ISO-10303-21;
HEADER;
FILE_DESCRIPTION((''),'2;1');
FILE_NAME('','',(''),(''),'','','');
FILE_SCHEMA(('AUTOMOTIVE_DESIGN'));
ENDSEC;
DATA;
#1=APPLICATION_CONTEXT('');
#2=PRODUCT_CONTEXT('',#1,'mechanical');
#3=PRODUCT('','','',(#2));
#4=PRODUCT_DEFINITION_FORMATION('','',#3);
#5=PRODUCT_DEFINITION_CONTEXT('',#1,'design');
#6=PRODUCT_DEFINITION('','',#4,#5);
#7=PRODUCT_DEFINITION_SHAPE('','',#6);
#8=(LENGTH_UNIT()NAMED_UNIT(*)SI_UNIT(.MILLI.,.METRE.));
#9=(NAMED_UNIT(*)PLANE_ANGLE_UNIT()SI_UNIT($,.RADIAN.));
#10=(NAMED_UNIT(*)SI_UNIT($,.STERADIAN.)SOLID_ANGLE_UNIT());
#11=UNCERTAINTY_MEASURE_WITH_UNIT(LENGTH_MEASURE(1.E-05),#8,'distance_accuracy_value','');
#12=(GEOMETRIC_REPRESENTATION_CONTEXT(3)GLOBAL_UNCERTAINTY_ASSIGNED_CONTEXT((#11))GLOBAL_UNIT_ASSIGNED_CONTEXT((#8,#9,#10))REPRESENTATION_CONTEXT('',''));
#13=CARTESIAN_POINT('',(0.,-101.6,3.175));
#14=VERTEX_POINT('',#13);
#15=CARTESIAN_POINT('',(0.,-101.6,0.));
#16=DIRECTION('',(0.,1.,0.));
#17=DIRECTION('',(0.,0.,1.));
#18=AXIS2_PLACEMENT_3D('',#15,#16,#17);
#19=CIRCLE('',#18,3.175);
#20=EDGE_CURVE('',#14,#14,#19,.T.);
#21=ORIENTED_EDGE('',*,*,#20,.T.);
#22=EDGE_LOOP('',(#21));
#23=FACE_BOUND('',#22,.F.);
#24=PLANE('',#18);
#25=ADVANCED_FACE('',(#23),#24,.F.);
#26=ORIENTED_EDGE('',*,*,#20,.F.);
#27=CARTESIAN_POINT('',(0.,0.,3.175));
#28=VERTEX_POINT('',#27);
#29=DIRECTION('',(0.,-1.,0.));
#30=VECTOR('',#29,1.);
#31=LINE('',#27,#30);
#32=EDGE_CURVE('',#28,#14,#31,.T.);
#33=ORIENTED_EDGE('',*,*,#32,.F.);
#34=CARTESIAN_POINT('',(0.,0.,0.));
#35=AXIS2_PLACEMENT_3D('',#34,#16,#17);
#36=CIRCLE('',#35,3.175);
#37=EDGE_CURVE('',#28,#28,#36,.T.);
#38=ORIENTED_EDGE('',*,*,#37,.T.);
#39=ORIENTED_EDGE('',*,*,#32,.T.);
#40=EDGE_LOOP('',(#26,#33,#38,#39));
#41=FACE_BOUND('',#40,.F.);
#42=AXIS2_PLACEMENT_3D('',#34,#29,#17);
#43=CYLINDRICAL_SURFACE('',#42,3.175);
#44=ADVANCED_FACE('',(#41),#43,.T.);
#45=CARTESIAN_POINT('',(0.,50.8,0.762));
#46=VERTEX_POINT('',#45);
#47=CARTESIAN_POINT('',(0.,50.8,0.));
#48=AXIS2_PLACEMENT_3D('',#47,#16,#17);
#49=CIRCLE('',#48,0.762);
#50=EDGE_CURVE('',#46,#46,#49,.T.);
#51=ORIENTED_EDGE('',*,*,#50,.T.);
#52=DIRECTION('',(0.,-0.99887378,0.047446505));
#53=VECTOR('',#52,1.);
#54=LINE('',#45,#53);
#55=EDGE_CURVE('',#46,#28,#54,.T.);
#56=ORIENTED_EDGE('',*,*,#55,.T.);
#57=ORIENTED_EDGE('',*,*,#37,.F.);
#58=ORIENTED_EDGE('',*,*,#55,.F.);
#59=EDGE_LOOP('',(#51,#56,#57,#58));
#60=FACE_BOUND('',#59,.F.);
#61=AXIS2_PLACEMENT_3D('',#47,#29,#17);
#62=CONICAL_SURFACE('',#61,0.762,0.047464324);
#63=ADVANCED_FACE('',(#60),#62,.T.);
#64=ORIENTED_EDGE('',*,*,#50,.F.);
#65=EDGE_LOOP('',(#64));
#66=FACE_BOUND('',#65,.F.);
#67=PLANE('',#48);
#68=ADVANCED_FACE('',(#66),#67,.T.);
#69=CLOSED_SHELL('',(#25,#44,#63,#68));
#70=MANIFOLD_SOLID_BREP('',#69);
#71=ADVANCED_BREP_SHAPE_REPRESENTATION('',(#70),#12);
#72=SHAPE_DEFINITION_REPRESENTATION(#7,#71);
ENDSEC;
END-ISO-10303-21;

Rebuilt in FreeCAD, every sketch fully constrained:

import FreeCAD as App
import Part
import Sketcher
Q = App.Units.Quantity

doc = App.newDocument("Part")
params = doc.addObject("Spreadsheet::Sheet", "Params")
for row, (alias, value) in enumerate([
    ("sketch1_width", "6 in"),
    ("sketch1_width2", "4 in"),
    ("sketch1_height", "0.03 in"),
    ("sketch1_height2", "0.125 in"),
    ("revolution_angle", "360 deg"),
], start=1):
    params.set(f"A{row}", alias)
    params.set(f"B{row}", "=" + value)
    params.setAlias(f"B{row}", alias)

body = doc.addObject("PartDesign::Body", "Body")

sketch1 = body.newObject("Sketcher::SketchObject", "Sketch")
sketch1.AttachmentSupport = (doc.getObject("YZ_Plane"), [""])
sketch1.MapMode = "FlatFace"
sketch1.addGeometry([
    Part.LineSegment(App.Vector(-101.6, 0, 0), App.Vector(50.8, 0, 0)),
    Part.LineSegment(App.Vector(50.8, 0, 0), App.Vector(50.8, 0.8, 0)),
    Part.LineSegment(App.Vector(50.8, 0.8, 0), App.Vector(0, 3.2, 0)),
    Part.LineSegment(App.Vector(0, 3.2, 0), App.Vector(-101.6, 3.2, 0)),
    Part.LineSegment(App.Vector(-101.6, 3.2, 0), App.Vector(-101.6, 0, 0)),
], False)
sketch1.addConstraint([
    Sketcher.Constraint("Coincident", 0, 2, 1, 1),
    Sketcher.Constraint("Coincident", 1, 2, 2, 1),
    Sketcher.Constraint("Coincident", 2, 2, 3, 1),
    Sketcher.Constraint("Coincident", 3, 2, 4, 1),
    Sketcher.Constraint("Coincident", 4, 2, 0, 1),
    Sketcher.Constraint("Horizontal", 0),
    Sketcher.Constraint("Vertical", 1),
    Sketcher.Constraint("Horizontal", 3),
    Sketcher.Constraint("Vertical", 4),
    Sketcher.Constraint("PointOnObject", 0, 2, -1),
    Sketcher.Constraint("PointOnObject", 2, 2, -2),
    Sketcher.Constraint("DistanceX", 0, 1, 0, 2, Q("6 in")),
    Sketcher.Constraint("DistanceX", 3, 2, 3, 1, Q("4 in")),
    Sketcher.Constraint("DistanceY", 1, 1, 1, 2, Q("0.03 in")),
    Sketcher.Constraint("DistanceY", 4, 2, 4, 1, Q("0.125 in")),
])
sketch1.setExpression("Constraints[11]", "Params.sketch1_width")
sketch1.setExpression("Constraints[12]", "Params.sketch1_width2")
sketch1.setExpression("Constraints[13]", "Params.sketch1_height")
sketch1.setExpression("Constraints[14]", "Params.sketch1_height2")
revolution = body.newObject("PartDesign::Revolution", "Revolution")
revolution.Profile = sketch1
revolution.ReferenceAxis = (sketch1, ["H_Axis"])
revolution.setExpression("Angle", "Params.revolution_angle")

doc.recompute()
